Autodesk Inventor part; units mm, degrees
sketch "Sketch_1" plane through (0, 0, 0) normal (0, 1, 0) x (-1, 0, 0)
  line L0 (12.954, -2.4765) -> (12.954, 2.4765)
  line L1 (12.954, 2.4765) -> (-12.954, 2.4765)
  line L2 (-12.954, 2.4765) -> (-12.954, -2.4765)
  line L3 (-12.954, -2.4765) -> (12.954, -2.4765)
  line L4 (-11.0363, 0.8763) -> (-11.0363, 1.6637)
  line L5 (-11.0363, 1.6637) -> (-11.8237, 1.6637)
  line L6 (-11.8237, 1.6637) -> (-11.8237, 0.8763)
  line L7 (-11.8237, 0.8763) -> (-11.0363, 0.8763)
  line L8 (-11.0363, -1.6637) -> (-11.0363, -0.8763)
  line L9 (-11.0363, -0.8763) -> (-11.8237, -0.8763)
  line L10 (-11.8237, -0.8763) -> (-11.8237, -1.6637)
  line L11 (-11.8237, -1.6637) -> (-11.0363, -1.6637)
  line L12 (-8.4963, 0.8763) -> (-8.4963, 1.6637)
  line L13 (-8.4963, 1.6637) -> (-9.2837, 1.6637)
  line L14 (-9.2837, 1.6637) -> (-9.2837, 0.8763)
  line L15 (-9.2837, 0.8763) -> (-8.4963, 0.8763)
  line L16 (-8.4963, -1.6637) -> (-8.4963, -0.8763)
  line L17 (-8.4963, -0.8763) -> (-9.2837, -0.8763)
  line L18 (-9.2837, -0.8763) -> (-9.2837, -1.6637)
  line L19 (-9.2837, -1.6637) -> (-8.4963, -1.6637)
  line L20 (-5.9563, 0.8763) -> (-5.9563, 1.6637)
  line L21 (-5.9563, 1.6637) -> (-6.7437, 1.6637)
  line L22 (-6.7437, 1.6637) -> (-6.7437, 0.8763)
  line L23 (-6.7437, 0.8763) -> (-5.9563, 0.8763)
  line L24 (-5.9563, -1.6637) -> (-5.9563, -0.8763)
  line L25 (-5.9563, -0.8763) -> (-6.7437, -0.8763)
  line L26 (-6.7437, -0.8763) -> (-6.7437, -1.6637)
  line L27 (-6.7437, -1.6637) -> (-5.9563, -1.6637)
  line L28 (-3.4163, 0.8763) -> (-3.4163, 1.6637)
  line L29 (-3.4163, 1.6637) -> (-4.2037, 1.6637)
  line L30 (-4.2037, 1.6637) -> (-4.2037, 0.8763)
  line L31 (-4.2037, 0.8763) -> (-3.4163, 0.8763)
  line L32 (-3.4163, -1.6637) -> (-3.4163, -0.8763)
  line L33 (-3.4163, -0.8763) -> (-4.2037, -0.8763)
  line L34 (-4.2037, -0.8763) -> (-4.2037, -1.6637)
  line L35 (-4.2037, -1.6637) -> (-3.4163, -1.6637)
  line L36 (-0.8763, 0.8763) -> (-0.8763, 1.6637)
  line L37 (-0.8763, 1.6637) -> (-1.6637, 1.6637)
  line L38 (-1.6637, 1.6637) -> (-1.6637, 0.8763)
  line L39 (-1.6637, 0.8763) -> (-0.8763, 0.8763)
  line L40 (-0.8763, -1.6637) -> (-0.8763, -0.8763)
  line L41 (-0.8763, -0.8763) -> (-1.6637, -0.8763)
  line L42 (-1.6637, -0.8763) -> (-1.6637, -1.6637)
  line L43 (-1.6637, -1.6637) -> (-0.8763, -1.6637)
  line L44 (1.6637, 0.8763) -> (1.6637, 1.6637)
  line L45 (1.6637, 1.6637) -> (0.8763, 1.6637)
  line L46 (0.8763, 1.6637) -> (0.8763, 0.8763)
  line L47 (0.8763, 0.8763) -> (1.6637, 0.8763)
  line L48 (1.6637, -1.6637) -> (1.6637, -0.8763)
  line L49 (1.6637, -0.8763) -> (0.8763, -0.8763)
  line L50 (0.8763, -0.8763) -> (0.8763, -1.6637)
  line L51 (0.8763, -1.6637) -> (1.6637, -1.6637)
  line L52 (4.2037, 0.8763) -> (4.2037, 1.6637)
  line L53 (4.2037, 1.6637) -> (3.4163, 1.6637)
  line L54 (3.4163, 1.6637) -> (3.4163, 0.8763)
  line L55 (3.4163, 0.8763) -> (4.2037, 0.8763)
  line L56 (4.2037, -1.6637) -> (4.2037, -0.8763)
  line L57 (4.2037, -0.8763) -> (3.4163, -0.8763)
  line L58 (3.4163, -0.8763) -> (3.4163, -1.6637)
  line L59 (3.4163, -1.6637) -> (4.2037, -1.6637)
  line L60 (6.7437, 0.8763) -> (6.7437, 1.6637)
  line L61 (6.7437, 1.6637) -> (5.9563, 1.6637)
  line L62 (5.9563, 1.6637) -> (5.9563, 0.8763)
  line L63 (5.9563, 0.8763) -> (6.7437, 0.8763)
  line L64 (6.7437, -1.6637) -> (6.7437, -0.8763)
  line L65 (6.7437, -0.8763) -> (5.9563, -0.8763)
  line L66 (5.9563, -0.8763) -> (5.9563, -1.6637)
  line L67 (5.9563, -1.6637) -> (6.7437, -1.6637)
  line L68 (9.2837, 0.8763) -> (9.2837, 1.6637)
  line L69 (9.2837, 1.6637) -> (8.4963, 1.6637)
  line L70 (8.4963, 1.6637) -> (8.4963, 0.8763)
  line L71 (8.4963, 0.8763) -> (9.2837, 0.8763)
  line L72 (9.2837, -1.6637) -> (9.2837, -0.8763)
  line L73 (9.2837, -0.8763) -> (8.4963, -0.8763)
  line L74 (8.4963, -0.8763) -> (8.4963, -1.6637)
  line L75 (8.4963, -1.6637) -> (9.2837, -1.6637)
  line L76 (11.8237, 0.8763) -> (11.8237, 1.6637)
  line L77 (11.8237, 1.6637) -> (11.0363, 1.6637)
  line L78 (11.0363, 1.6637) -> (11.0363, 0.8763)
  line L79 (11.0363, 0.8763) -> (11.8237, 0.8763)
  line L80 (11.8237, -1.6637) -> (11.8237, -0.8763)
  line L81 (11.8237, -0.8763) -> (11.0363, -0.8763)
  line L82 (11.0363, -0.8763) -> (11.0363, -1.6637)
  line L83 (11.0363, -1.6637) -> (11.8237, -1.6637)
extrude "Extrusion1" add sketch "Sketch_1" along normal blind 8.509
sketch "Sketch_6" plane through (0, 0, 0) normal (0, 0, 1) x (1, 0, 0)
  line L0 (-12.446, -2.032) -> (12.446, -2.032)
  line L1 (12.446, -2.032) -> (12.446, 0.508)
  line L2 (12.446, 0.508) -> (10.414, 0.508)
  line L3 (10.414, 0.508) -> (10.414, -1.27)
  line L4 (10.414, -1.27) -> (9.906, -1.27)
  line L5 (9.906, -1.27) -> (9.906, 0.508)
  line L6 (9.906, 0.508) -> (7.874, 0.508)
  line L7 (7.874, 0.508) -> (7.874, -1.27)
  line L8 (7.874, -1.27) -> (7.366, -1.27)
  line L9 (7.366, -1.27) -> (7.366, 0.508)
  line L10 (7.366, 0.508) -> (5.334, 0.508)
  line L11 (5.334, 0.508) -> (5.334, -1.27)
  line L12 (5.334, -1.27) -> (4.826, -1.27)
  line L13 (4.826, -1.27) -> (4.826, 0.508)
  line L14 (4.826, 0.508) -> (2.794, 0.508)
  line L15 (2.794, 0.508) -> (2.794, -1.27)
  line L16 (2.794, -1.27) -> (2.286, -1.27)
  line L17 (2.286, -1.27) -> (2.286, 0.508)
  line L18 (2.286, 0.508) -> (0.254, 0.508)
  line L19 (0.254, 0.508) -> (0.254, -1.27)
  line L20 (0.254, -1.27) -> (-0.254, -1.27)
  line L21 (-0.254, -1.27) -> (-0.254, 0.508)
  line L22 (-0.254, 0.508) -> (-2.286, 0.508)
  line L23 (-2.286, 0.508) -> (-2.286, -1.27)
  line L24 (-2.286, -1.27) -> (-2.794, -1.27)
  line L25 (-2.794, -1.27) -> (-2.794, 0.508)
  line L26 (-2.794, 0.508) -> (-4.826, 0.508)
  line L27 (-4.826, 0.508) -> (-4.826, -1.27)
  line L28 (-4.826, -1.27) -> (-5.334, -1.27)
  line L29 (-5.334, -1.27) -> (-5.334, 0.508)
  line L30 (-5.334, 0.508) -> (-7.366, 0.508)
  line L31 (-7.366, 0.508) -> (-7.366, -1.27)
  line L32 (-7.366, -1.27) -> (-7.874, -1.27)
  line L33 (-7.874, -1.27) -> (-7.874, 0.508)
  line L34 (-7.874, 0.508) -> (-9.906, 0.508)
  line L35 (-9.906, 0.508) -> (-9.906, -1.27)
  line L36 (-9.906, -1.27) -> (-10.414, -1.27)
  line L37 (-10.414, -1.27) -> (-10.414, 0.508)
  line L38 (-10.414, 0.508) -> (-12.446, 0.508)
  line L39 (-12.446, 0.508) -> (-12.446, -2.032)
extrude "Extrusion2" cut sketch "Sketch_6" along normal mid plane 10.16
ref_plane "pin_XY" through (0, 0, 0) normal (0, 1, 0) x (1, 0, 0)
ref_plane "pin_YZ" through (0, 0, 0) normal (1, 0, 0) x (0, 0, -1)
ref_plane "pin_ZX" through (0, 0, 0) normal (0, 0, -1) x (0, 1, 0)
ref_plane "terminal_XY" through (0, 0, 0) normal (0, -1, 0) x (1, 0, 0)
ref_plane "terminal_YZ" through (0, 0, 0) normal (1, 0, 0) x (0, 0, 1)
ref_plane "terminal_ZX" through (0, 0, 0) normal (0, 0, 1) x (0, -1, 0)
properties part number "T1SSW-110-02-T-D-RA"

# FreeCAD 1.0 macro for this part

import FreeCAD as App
import Part
import Sketcher

V = App.Vector
Q = App.Units.Quantity


def add_polygon(sketch, points):
    """Adds a closed chain of lines whose ends are joined by coincident constraints."""
    first, n = sketch.GeometryCount, len(points)
    for a, b in zip(points, points[1:] + points[:1]):
        sketch.addGeometry(Part.LineSegment(App.Vector(*a, 0), App.Vector(*b, 0)), False)
    for i in range(n):
        sketch.addConstraint(Sketcher.Constraint("Coincident", first + i, 2, first + (i + 1) % n, 1))

doc = App.newDocument("Part")
body = doc.addObject("PartDesign::Body", "Body")

# Sketch on XZ plane
sketch1 = doc.addObject("Sketcher::SketchObject", "Sketch")
body.addObject(sketch1)
sketch1.AttachmentSupport = (doc.XZ_Plane, [""])
sketch1.MapMode = "FlatFace"
add_polygon(sketch1, [(12.954, -2.4765), (-12.954, -2.4765), (-12.954, 2.4765), (12.954, 2.4765)])  # lines 0-3
add_polygon(sketch1, [(11.0363, -0.8763), (11.0363, -1.6637), (11.8237, -1.6637), (11.8237, -0.8763)])  # lines 4-7
add_polygon(sketch1, [(8.4963, -0.8763), (8.4963, -1.6637), (9.2837, -1.6637), (9.2837, -0.8763)])  # lines 8-11
add_polygon(sketch1, [(5.9563, -0.8763), (5.9563, -1.6637), (6.7437, -1.6637), (6.7437, -0.8763)])  # lines 12-15
add_polygon(sketch1, [(3.4163, -0.8763), (3.4163, -1.6637), (4.2037, -1.6637), (4.2037, -0.8763)])  # lines 16-19
add_polygon(sketch1, [(0.8763, -0.8763), (0.8763, -1.6637), (1.6637, -1.6637), (1.6637, -0.8763)])  # lines 20-23
add_polygon(sketch1, [(-1.6637, -0.8763), (-1.6637, -1.6637), (-0.8763, -1.6637), (-0.8763, -0.8763)])  # lines 24-27
add_polygon(sketch1, [(-4.2037, -0.8763), (-4.2037, -1.6637), (-3.4163, -1.6637), (-3.4163, -0.8763)])  # lines 28-31
add_polygon(sketch1, [(-6.7437, -0.8763), (-6.7437, -1.6637), (-5.9563, -1.6637), (-5.9563, -0.8763)])  # lines 32-35
add_polygon(sketch1, [(-9.2837, -0.8763), (-9.2837, -1.6637), (-8.4963, -1.6637), (-8.4963, -0.8763)])  # lines 36-39
add_polygon(sketch1, [(-11.8237, -0.8763), (-11.8237, -1.6637), (-11.0363, -1.6637), (-11.0363, -0.8763)])  # lines 40-43
add_polygon(sketch1, [(11.0363, 1.6637), (11.0363, 0.8763), (11.8237, 0.8763), (11.8237, 1.6637)])  # lines 44-47
add_polygon(sketch1, [(8.4963, 1.6637), (8.4963, 0.8763), (9.2837, 0.8763), (9.2837, 1.6637)])  # lines 48-51
add_polygon(sketch1, [(5.9563, 1.6637), (5.9563, 0.8763), (6.7437, 0.8763), (6.7437, 1.6637)])  # lines 52-55
add_polygon(sketch1, [(3.4163, 1.6637), (3.4163, 0.8763), (4.2037, 0.8763), (4.2037, 1.6637)])  # lines 56-59
add_polygon(sketch1, [(0.8763, 1.6637), (0.8763, 0.8763), (1.6637, 0.8763), (1.6637, 1.6637)])  # lines 60-63
add_polygon(sketch1, [(-1.6637, 1.6637), (-1.6637, 0.8763), (-0.8763, 0.8763), (-0.8763, 1.6637)])  # lines 64-67
add_polygon(sketch1, [(-4.2037, 1.6637), (-4.2037, 0.8763), (-3.4163, 0.8763), (-3.4163, 1.6637)])  # lines 68-71
add_polygon(sketch1, [(-6.7437, 1.6637), (-6.7437, 0.8763), (-5.9563, 0.8763), (-5.9563, 1.6637)])  # lines 72-75
add_polygon(sketch1, [(-9.2837, 1.6637), (-9.2837, 0.8763), (-8.4963, 0.8763), (-8.4963, 1.6637)])  # lines 76-79
add_polygon(sketch1, [(-11.8237, 1.6637), (-11.8237, 0.8763), (-11.0363, 0.8763), (-11.0363, 1.6637)])  # lines 80-83
sketch1.addConstraint(Sketcher.Constraint("Horizontal", 0))
sketch1.addConstraint(Sketcher.Constraint("Vertical", 1))
sketch1.addConstraint(Sketcher.Constraint("Horizontal", 2))
sketch1.addConstraint(Sketcher.Constraint("Vertical", 3))
sketch1.addConstraint(Sketcher.Constraint("Vertical", 4))
sketch1.addConstraint(Sketcher.Constraint("Horizontal", 5))
sketch1.addConstraint(Sketcher.Constraint("Vertical", 6))
sketch1.addConstraint(Sketcher.Constraint("Horizontal", 7))
sketch1.addConstraint(Sketcher.Constraint("Vertical", 8))
sketch1.addConstraint(Sketcher.Constraint("Horizontal", 9))
sketch1.addConstraint(Sketcher.Constraint("Vertical", 10))
sketch1.addConstraint(Sketcher.Constraint("Horizontal", 11))
sketch1.addConstraint(Sketcher.Constraint("Vertical", 12))
sketch1.addConstraint(Sketcher.Constraint("Horizontal", 13))
sketch1.addConstraint(Sketcher.Constraint("Vertical", 14))
sketch1.addConstraint(Sketcher.Constraint("Horizontal", 15))
sketch1.addConstraint(Sketcher.Constraint("Vertical", 16))
sketch1.addConstraint(Sketcher.Constraint("Horizontal", 17))
sketch1.addConstraint(Sketcher.Constraint("Vertical", 18))
sketch1.addConstraint(Sketcher.Constraint("Horizontal", 19))
sketch1.addConstraint(Sketcher.Constraint("Vertical", 20))
sketch1.addConstraint(Sketcher.Constraint("Horizontal", 21))
sketch1.addConstraint(Sketcher.Constraint("Vertical", 22))
sketch1.addConstraint(Sketcher.Constraint("Horizontal", 23))
sketch1.addConstraint(Sketcher.Constraint("Vertical", 24))
sketch1.addConstraint(Sketcher.Constraint("Horizontal", 25))
sketch1.addConstraint(Sketcher.Constraint("Vertical", 26))
sketch1.addConstraint(Sketcher.Constraint("Horizontal", 27))
sketch1.addConstraint(Sketcher.Constraint("Vertical", 28))
sketch1.addConstraint(Sketcher.Constraint("Horizontal", 29))
sketch1.addConstraint(Sketcher.Constraint("Vertical", 30))
sketch1.addConstraint(Sketcher.Constraint("Horizontal", 31))
sketch1.addConstraint(Sketcher.Constraint("Vertical", 32))
sketch1.addConstraint(Sketcher.Constraint("Horizontal", 33))
sketch1.addConstraint(Sketcher.Constraint("Vertical", 34))
sketch1.addConstraint(Sketcher.Constraint("Horizontal", 35))
sketch1.addConstraint(Sketcher.Constraint("Vertical", 36))
sketch1.addConstraint(Sketcher.Constraint("Horizontal", 37))
sketch1.addConstraint(Sketcher.Constraint("Vertical", 38))
sketch1.addConstraint(Sketcher.Constraint("Horizontal", 39))
sketch1.addConstraint(Sketcher.Constraint("Vertical", 40))
sketch1.addConstraint(Sketcher.Constraint("Horizontal", 41))
sketch1.addConstraint(Sketcher.Constraint("Vertical", 42))
sketch1.addConstraint(Sketcher.Constraint("Horizontal", 43))
sketch1.addConstraint(Sketcher.Constraint("Vertical", 44))
sketch1.addConstraint(Sketcher.Constraint("Horizontal", 45))
sketch1.addConstraint(Sketcher.Constraint("Vertical", 46))
sketch1.addConstraint(Sketcher.Constraint("Horizontal", 47))
sketch1.addConstraint(Sketcher.Constraint("Vertical", 48))
sketch1.addConstraint(Sketcher.Constraint("Horizontal", 49))
sketch1.addConstraint(Sketcher.Constraint("Vertical", 50))
sketch1.addConstraint(Sketcher.Constraint("Horizontal", 51))
sketch1.addConstraint(Sketcher.Constraint("Vertical", 52))
sketch1.addConstraint(Sketcher.Constraint("Horizontal", 53))
sketch1.addConstraint(Sketcher.Constraint("Vertical", 54))
sketch1.addConstraint(Sketcher.Constraint("Horizontal", 55))
sketch1.addConstraint(Sketcher.Constraint("Vertical", 56))
sketch1.addConstraint(Sketcher.Constraint("Horizontal", 57))
sketch1.addConstraint(Sketcher.Constraint("Vertical", 58))
sketch1.addConstraint(Sketcher.Constraint("Horizontal", 59))
sketch1.addConstraint(Sketcher.Constraint("Vertical", 60))
sketch1.addConstraint(Sketcher.Constraint("Horizontal", 61))
sketch1.addConstraint(Sketcher.Constraint("Vertical", 62))
sketch1.addConstraint(Sketcher.Constraint("Horizontal", 63))
sketch1.addConstraint(Sketcher.Constraint("Vertical", 64))
sketch1.addConstraint(Sketcher.Constraint("Horizontal", 65))
sketch1.addConstraint(Sketcher.Constraint("Vertical", 66))
sketch1.addConstraint(Sketcher.Constraint("Horizontal", 67))
sketch1.addConstraint(Sketcher.Constraint("Vertical", 68))
sketch1.addConstraint(Sketcher.Constraint("Horizontal", 69))
sketch1.addConstraint(Sketcher.Constraint("Vertical", 70))
sketch1.addConstraint(Sketcher.Constraint("Horizontal", 71))
sketch1.addConstraint(Sketcher.Constraint("Vertical", 72))
sketch1.addConstraint(Sketcher.Constraint("Horizontal", 73))
sketch1.addConstraint(Sketcher.Constraint("Vertical", 74))
sketch1.addConstraint(Sketcher.Constraint("Horizontal", 75))
sketch1.addConstraint(Sketcher.Constraint("Vertical", 76))
sketch1.addConstraint(Sketcher.Constraint("Horizontal", 77))
sketch1.addConstraint(Sketcher.Constraint("Vertical", 78))
sketch1.addConstraint(Sketcher.Constraint("Horizontal", 79))
sketch1.addConstraint(Sketcher.Constraint("Vertical", 80))
sketch1.addConstraint(Sketcher.Constraint("Horizontal", 81))
sketch1.addConstraint(Sketcher.Constraint("Vertical", 82))
sketch1.addConstraint(Sketcher.Constraint("Horizontal", 83))
sketch1.addConstraint(Sketcher.Constraint("Symmetric", 0, 2, 2, 2, -1, 1))
sketch1.addConstraint(Sketcher.Constraint("Symmetric", 42, 2, 44, 2, -1, 1))
sketch1.addConstraint(Sketcher.Constraint("Symmetric", 40, 2, 46, 2, -1, 1))
sketch1.addConstraint(Sketcher.Constraint("Symmetric", 38, 2, 48, 2, -1, 1))
sketch1.addConstraint(Sketcher.Constraint("Symmetric", 36, 2, 50, 2, -1, 1))
sketch1.addConstraint(Sketcher.Constraint("Symmetric", 34, 2, 52, 2, -1, 1))
sketch1.addConstraint(Sketcher.Constraint("Symmetric", 32, 2, 54, 2, -1, 1))
sketch1.addConstraint(Sketcher.Constraint("Symmetric", 30, 2, 56, 2, -1, 1))
sketch1.addConstraint(Sketcher.Constraint("Symmetric", 28, 2, 58, 2, -1, 1))
sketch1.addConstraint(Sketcher.Constraint("Symmetric", 26, 2, 60, 2, -1, 1))
sketch1.addConstraint(Sketcher.Constraint("Symmetric", 24, 2, 62, 2, -1, 1))
sketch1.addConstraint(Sketcher.Constraint("Symmetric", 22, 2, 64, 2, -1, 1))
sketch1.addConstraint(Sketcher.Constraint("Symmetric", 20, 2, 66, 2, -1, 1))
sketch1.addConstraint(Sketcher.Constraint("Symmetric", 18, 2, 68, 2, -1, 1))
sketch1.addConstraint(Sketcher.Constraint("Symmetric", 16, 2, 70, 2, -1, 1))
sketch1.addConstraint(Sketcher.Constraint("Symmetric", 14, 2, 72, 2, -1, 1))
sketch1.addConstraint(Sketcher.Constraint("Symmetric", 12, 2, 74, 2, -1, 1))
sketch1.addConstraint(Sketcher.Constraint("Symmetric", 10, 2, 76, 2, -1, 1))
sketch1.addConstraint(Sketcher.Constraint("Symmetric", 8, 2, 78, 2, -1, 1))
sketch1.addConstraint(Sketcher.Constraint("Symmetric", 6, 2, 80, 2, -1, 1))
sketch1.addConstraint(Sketcher.Constraint("Symmetric", 4, 2, 82, 2, -1, 1))
sketch1.addConstraint(Sketcher.Constraint("Symmetric", 21, 2, 24, 2, -2))
sketch1.addConstraint(Sketcher.Constraint("Symmetric", 23, 2, 26, 2, -2))
sketch1.addConstraint(Sketcher.Constraint("Symmetric", 17, 2, 28, 2, -2))
sketch1.addConstraint(Sketcher.Constraint("Symmetric", 19, 2, 30, 2, -2))
sketch1.addConstraint(Sketcher.Constraint("Symmetric", 13, 2, 32, 2, -2))
sketch1.addConstraint(Sketcher.Constraint("Symmetric", 15, 2, 34, 2, -2))
sketch1.addConstraint(Sketcher.Constraint("Symmetric", 9, 2, 36, 2, -2))
sketch1.addConstraint(Sketcher.Constraint("Symmetric", 11, 2, 38, 2, -2))
sketch1.addConstraint(Sketcher.Constraint("Symmetric", 5, 2, 40, 2, -2))
sketch1.addConstraint(Sketcher.Constraint("Symmetric", 7, 2, 42, 2, -2))
sketch1.addConstraint(Sketcher.Constraint("Horizontal", 5, 2, 8, 2))
sketch1.addConstraint(Sketcher.Constraint("Horizontal", 7, 2, 10, 2))
sketch1.addConstraint(Sketcher.Constraint("Horizontal", 9, 2, 12, 2))
sketch1.addConstraint(Sketcher.Constraint("Horizontal", 11, 2, 14, 2))
sketch1.addConstraint(Sketcher.Constraint("Horizontal", 13, 2, 16, 2))
sketch1.addConstraint(Sketcher.Constraint("Horizontal", 15, 2, 18, 2))
sketch1.addConstraint(Sketcher.Constraint("Horizontal", 17, 2, 20, 2))
sketch1.addConstraint(Sketcher.Constraint("Horizontal", 19, 2, 22, 2))
sketch1.addConstraint(Sketcher.Constraint("Equal", 7, 9))
sketch1.addConstraint(Sketcher.Constraint("Equal", 11, 13))
sketch1.addConstraint(Sketcher.Constraint("Equal", 15, 17))
sketch1.addConstraint(Sketcher.Constraint("Equal", 19, 21))
sketch1.addConstraint(Sketcher.Constraint("Equal", 83, 4))
sketch1.addConstraint(Sketcher.Constraint("DistanceX", 0, 2, 0, 1, Q("1.02 in")))
sketch1.addConstraint(Sketcher.Constraint("DistanceX", 5, 1, 5, 2, Q("0.031 in")))
sketch1.addConstraint(Sketcher.Constraint("DistanceY", 1, 1, 1, 2, Q("0.195 in")))
sketch1.addConstraint(Sketcher.Constraint("DistanceX", -1, 1, 4, 2, Q("0.4345 in")))
sketch1.addConstraint(Sketcher.Constraint("DistanceY", 4, 2, -1, 1, Q("0.0655 in")))
sketch1.addConstraint(Sketcher.Constraint("DistanceX", -1, 1, 8, 2, Q("0.3345 in")))
sketch1.addConstraint(Sketcher.Constraint("DistanceX", -1, 1, 12, 2, Q("0.2345 in")))
sketch1.addConstraint(Sketcher.Constraint("DistanceX", -1, 1, 16, 2, Q("0.1345 in")))
sketch1.addConstraint(Sketcher.Constraint("DistanceX", -1, 1, 20, 2, Q("0.0345 in")))
pad1 = doc.addObject("PartDesign::Pad", "Pad")
body.addObject(pad1)
pad1.Profile = sketch1
pad1.Length = Q("0.335 in")
pad1.Reversed = True

# Sketch on XY plane
sketch2 = doc.addObject("Sketcher::SketchObject", "Sketch001")
body.addObject(sketch2)
sketch2.AttachmentSupport = (doc.XY_Plane, [""])
sketch2.MapMode = "FlatFace"
add_polygon(sketch2, [(-12.446, 0.508), (-12.446, -2.032), (12.446, -2.032), (12.446, 0.508), (10.414, 0.508), (10.414, -1.27), (9.906, -1.27), (9.906, 0.508), (7.874, 0.508), (7.874, -1.27), (7.366, -1.27), (7.366, 0.508), (5.334, 0.508), (5.334, -1.27), (4.826, -1.27), (4.826, 0.508), (2.794, 0.508), (2.794, -1.27), (2.286, -1.27), (2.286, 0.508), (0.254, 0.508), (0.254, -1.27), (-0.254, -1.27), (-0.254, 0.508), (-2.286, 0.508), (-2.286, -1.27), (-2.794, -1.27), (-2.794, 0.508), (-4.826, 0.508), (-4.826, -1.27), (-5.334, -1.27), (-5.334, 0.508), (-7.366, 0.508), (-7.366, -1.27), (-7.874, -1.27), (-7.874, 0.508), (-9.906, 0.508), (-9.906, -1.27), (-10.414, -1.27), (-10.414, 0.508)])  # lines 0-39
sketch2.addConstraint(Sketcher.Constraint("Vertical", 0))
sketch2.addConstraint(Sketcher.Constraint("Horizontal", 1))
sketch2.addConstraint(Sketcher.Constraint("Vertical", 2))
sketch2.addConstraint(Sketcher.Constraint("Horizontal", 3))
sketch2.addConstraint(Sketcher.Constraint("Vertical", 4))
sketch2.addConstraint(Sketcher.Constraint("Horizontal", 5))
sketch2.addConstraint(Sketcher.Constraint("Vertical", 6))
sketch2.addConstraint(Sketcher.Constraint("Horizontal", 7))
sketch2.addConstraint(Sketcher.Constraint("Vertical", 8))
sketch2.addConstraint(Sketcher.Constraint("Horizontal", 9))
sketch2.addConstraint(Sketcher.Constraint("Vertical", 10))
sketch2.addConstraint(Sketcher.Constraint("Horizontal", 11))
sketch2.addConstraint(Sketcher.Constraint("Vertical", 12))
sketch2.addConstraint(Sketcher.Constraint("Horizontal", 13))
sketch2.addConstraint(Sketcher.Constraint("Vertical", 14))
sketch2.addConstraint(Sketcher.Constraint("Horizontal", 15))
sketch2.addConstraint(Sketcher.Constraint("Vertical", 16))
sketch2.addConstraint(Sketcher.Constraint("Horizontal", 17))
sketch2.addConstraint(Sketcher.Constraint("Vertical", 18))
sketch2.addConstraint(Sketcher.Constraint("Horizontal", 19))
sketch2.addConstraint(Sketcher.Constraint("Vertical", 20))
sketch2.addConstraint(Sketcher.Constraint("Horizontal", 21))
sketch2.addConstraint(Sketcher.Constraint("Vertical", 22))
sketch2.addConstraint(Sketcher.Constraint("Horizontal", 23))
sketch2.addConstraint(Sketcher.Constraint("Vertical", 24))
sketch2.addConstraint(Sketcher.Constraint("Horizontal", 25))
sketch2.addConstraint(Sketcher.Constraint("Vertical", 26))
sketch2.addConstraint(Sketcher.Constraint("Horizontal", 27))
sketch2.addConstraint(Sketcher.Constraint("Vertical", 28))
sketch2.addConstraint(Sketcher.Constraint("Horizontal", 29))
sketch2.addConstraint(Sketcher.Constraint("Vertical", 30))
sketch2.addConstraint(Sketcher.Constraint("Horizontal", 31))
sketch2.addConstraint(Sketcher.Constraint("Vertical", 32))
sketch2.addConstraint(Sketcher.Constraint("Horizontal", 33))
sketch2.addConstraint(Sketcher.Constraint("Vertical", 34))
sketch2.addConstraint(Sketcher.Constraint("Horizontal", 35))
sketch2.addConstraint(Sketcher.Constraint("Vertical", 36))
sketch2.addConstraint(Sketcher.Constraint("Horizontal", 37))
sketch2.addConstraint(Sketcher.Constraint("Vertical", 38))
sketch2.addConstraint(Sketcher.Constraint("Horizontal", 39))
sketch2.addConstraint(Sketcher.Constraint("Symmetric", 19, 2, 22, 2, -2))
sketch2.addConstraint(Sketcher.Constraint("Symmetric", 17, 2, 24, 2, -2))
sketch2.addConstraint(Sketcher.Constraint("Symmetric", 15, 2, 26, 2, -2))
sketch2.addConstraint(Sketcher.Constraint("Symmetric", 13, 2, 28, 2, -2))
sketch2.addConstraint(Sketcher.Constraint("Symmetric", 11, 2, 30, 2, -2))
sketch2.addConstraint(Sketcher.Constraint("Symmetric", 9, 2, 32, 2, -2))
sketch2.addConstraint(Sketcher.Constraint("Symmetric", 7, 2, 34, 2, -2))
sketch2.addConstraint(Sketcher.Constraint("Symmetric", 5, 2, 36, 2, -2))
sketch2.addConstraint(Sketcher.Constraint("Symmetric", 3, 2, 38, 2, -2))
sketch2.addConstraint(Sketcher.Constraint("Horizontal", 3, 2, 6, 2))
sketch2.addConstraint(Sketcher.Constraint("Horizontal", 5, 2, 8, 2))
sketch2.addConstraint(Sketcher.Constraint("Horizontal", 7, 2, 10, 2))
sketch2.addConstraint(Sketcher.Constraint("Horizontal", 9, 2, 12, 2))
sketch2.addConstraint(Sketcher.Constraint("Horizontal", 11, 2, 14, 2))
sketch2.addConstraint(Sketcher.Constraint("Horizontal", 13, 2, 16, 2))
sketch2.addConstraint(Sketcher.Constraint("Horizontal", 15, 2, 18, 2))
sketch2.addConstraint(Sketcher.Constraint("Horizontal", 17, 2, 20, 2))
sketch2.addConstraint(Sketcher.Constraint("Equal", 3, 7))
sketch2.addConstraint(Sketcher.Constraint("Equal", 5, 9))
sketch2.addConstraint(Sketcher.Constraint("Equal", 7, 11))
sketch2.addConstraint(Sketcher.Constraint("Equal", 9, 13))
sketch2.addConstraint(Sketcher.Constraint("Equal", 11, 15))
sketch2.addConstraint(Sketcher.Constraint("Equal", 13, 17))
sketch2.addConstraint(Sketcher.Constraint("Equal", 15, 19))
sketch2.addConstraint(Sketcher.Constraint("Equal", 17, 21))
sketch2.addConstraint(Sketcher.Constraint("Equal", 35, 39))
sketch2.addConstraint(Sketcher.Constraint("DistanceY", 0, 2, 0, 1, Q("0.1 in")))
sketch2.addConstraint(Sketcher.Constraint("DistanceX", 1, 1, 1, 2, Q("0.98 in")))
sketch2.addConstraint(Sketcher.Constraint("DistanceX", 3, 2, 3, 1, Q("0.08 in")))
sketch2.addConstraint(Sketcher.Constraint("DistanceY", 4, 2, 4, 1, Q("0.07 in")))
sketch2.addConstraint(Sketcher.Constraint("DistanceY", 0, 2, -1, 1, Q("0.08 in")))
pocket1 = doc.addObject("PartDesign::Pocket", "Pocket")
body.addObject(pocket1)
pocket1.Profile = sketch2
pocket1.Length = Q("0.4 in")
pocket1.Midplane = True

doc.recompute()
